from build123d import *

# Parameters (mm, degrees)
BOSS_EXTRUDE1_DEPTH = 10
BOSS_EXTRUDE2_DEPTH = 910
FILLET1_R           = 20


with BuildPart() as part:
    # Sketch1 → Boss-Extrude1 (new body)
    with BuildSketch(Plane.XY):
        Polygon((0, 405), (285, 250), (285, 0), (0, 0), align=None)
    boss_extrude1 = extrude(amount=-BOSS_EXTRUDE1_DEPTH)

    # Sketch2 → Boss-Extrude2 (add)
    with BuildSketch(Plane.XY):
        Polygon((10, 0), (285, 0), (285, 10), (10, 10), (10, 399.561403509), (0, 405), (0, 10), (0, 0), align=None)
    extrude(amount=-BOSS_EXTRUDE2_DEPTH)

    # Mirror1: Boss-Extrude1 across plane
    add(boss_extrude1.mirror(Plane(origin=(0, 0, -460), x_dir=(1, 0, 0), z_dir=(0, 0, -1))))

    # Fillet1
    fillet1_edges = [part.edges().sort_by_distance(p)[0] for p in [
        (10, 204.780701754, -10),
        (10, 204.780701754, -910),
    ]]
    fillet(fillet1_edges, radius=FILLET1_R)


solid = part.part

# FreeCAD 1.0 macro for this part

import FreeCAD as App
import Part
import Sketcher

V = App.Vector
Q = App.Units.Quantity


def edges_at(feature, points):
    """Names of the edges that pass closest to the given points."""
    edges = feature.Shape.Edges
    near = lambda p: min(range(len(edges)), key=lambda i: edges[i].distToShape(Part.Vertex(*p))[0])
    return sorted({f"Edge{near(p) + 1}" for p in points})

doc = App.newDocument("Part")
body = doc.addObject("PartDesign::Body", "Body")

# Sketch on XY plane
sketch1 = body.newObject("Sketcher::SketchObject", "Sketch")
sketch1.AttachmentSupport = (doc.getObject("XY_Plane"), [""])
sketch1.MapMode = "FlatFace"
sketch1.addGeometry(Part.LineSegment(V(285, 250, 0), V(0, 405, 0)), False)
sketch1.addGeometry(Part.LineSegment(V(0, 405, 0), V(0, 0, 0)), False)
sketch1.addGeometry(Part.LineSegment(V(0, 0, 0), V(285, 0, 0)), False)
sketch1.addGeometry(Part.LineSegment(V(285, 0, 0), V(285, 250, 0)), False)
sketch1.addConstraint(Sketcher.Constraint("Coincident", 0, 2, 1, 1))
sketch1.addConstraint(Sketcher.Constraint("Coincident", 1, 2, 2, 1))
sketch1.addConstraint(Sketcher.Constraint("Coincident", 2, 2, 3, 1))
sketch1.addConstraint(Sketcher.Constraint("Coincident", 3, 2, 0, 1))
sketch1.addConstraint(Sketcher.Constraint("Vertical", 1))
sketch1.addConstraint(Sketcher.Constraint("Horizontal", 2))
sketch1.addConstraint(Sketcher.Constraint("Vertical", 3))
sketch1.addConstraint(Sketcher.Constraint("Coincident", 1, 2, -1, 1))
sketch1.addConstraint(Sketcher.Constraint("DistanceX", 2, 1, 2, 2, 285.0))
sketch1.addConstraint(Sketcher.Constraint("DistanceY", 1, 2, 1, 1, 405.0))
sketch1.addConstraint(Sketcher.Constraint("DistanceY", 3, 1, 3, 2, 250.0))
pad1 = body.newObject("PartDesign::Pad", "Pad")
pad1.Profile = sketch1
pad1.Length = 10
pad1.Reversed = True

# Sketch on XY plane
sketch2 = body.newObject("Sketcher::SketchObject", "Sketch001")
sketch2.AttachmentSupport = (doc.getObject("XY_Plane"), [""])
sketch2.MapMode = "FlatFace"
sketch2.addGeometry(Part.LineSegment(V(285, 0, 0), V(285, 10, 0)), False)
sketch2.addGeometry(Part.LineSegment(V(285, 10, 0), V(10, 10, 0)), False)
sketch2.addGeometry(Part.LineSegment(V(10, 10, 0), V(10, 400, 0)), False)
sketch2.addGeometry(Part.LineSegment(V(10, 400, 0), V(0, 405, 0)), False)
sketch2.addGeometry(Part.LineSegment(V(0, 405, 0), V(0, 0, 0)), False)
sketch2.addGeometry(Part.LineSegment(V(0, 0, 0), V(285, 0, 0)), False)
sketch2.addConstraint(Sketcher.Constraint("Coincident", 0, 2, 1, 1))
sketch2.addConstraint(Sketcher.Constraint("Coincident", 1, 2, 2, 1))
sketch2.addConstraint(Sketcher.Constraint("Coincident", 2, 2, 3, 1))
sketch2.addConstraint(Sketcher.Constraint("Coincident", 3, 2, 4, 1))
sketch2.addConstraint(Sketcher.Constraint("Coincident", 4, 2, 5, 1))
sketch2.addConstraint(Sketcher.Constraint("Coincident", 5, 2, 0, 1))
sketch2.addConstraint(Sketcher.Constraint("Vertical", 0))
sketch2.addConstraint(Sketcher.Constraint("Horizontal", 1))
sketch2.addConstraint(Sketcher.Constraint("Vertical", 2))
sketch2.addConstraint(Sketcher.Constraint("Vertical", 4))
sketch2.addConstraint(Sketcher.Constraint("Horizontal", 5))
sketch2.addConstraint(Sketcher.Constraint("Coincident", 4, 2, -1, 1))
sketch2.addConstraint(Sketcher.Constraint("DistanceX", 1, 2, 1, 1, 275.0))
sketch2.addConstraint(Sketcher.Constraint("DistanceX", 5, 1, 5, 2, 285.0))
sketch2.addConstraint(Sketcher.Constraint("DistanceY", 0, 1, 0, 2, 10.0))
sketch2.addConstraint(Sketcher.Constraint("DistanceY", 4, 2, 4, 1, 405.0))
sketch2.addConstraint(Sketcher.Constraint("Angle", 3, Q("151.460015 deg")))
pad2 = body.newObject("PartDesign::Pad", "Pad001")
pad2.Profile = sketch2
pad2.Length = 910
pad2.Reversed = True
doc.recompute()

datumplane = body.newObject("PartDesign::Plane", "DatumPlane")
datumplane.AttachmentSupport = (doc.getObject("XY_Plane"), [""])
datumplane.MapMode = "FlatFace"
datumplane.AttachmentOffset = App.Placement(V(0, 0, -460), App.Rotation())
mirrored = body.newObject("PartDesign::Mirrored", "Mirrored")
mirrored.Originals = [pad1]
mirrored.MirrorPlane = (datumplane, [""])
body.Tip = mirrored
doc.recompute()

fillet = body.newObject("PartDesign::Fillet", "Fillet")
fillet.Base = (mirrored, edges_at(mirrored, [(10, 204.781, -10), (10, 204.781, -910)]))
fillet.Radius = 20

doc.recompute()
